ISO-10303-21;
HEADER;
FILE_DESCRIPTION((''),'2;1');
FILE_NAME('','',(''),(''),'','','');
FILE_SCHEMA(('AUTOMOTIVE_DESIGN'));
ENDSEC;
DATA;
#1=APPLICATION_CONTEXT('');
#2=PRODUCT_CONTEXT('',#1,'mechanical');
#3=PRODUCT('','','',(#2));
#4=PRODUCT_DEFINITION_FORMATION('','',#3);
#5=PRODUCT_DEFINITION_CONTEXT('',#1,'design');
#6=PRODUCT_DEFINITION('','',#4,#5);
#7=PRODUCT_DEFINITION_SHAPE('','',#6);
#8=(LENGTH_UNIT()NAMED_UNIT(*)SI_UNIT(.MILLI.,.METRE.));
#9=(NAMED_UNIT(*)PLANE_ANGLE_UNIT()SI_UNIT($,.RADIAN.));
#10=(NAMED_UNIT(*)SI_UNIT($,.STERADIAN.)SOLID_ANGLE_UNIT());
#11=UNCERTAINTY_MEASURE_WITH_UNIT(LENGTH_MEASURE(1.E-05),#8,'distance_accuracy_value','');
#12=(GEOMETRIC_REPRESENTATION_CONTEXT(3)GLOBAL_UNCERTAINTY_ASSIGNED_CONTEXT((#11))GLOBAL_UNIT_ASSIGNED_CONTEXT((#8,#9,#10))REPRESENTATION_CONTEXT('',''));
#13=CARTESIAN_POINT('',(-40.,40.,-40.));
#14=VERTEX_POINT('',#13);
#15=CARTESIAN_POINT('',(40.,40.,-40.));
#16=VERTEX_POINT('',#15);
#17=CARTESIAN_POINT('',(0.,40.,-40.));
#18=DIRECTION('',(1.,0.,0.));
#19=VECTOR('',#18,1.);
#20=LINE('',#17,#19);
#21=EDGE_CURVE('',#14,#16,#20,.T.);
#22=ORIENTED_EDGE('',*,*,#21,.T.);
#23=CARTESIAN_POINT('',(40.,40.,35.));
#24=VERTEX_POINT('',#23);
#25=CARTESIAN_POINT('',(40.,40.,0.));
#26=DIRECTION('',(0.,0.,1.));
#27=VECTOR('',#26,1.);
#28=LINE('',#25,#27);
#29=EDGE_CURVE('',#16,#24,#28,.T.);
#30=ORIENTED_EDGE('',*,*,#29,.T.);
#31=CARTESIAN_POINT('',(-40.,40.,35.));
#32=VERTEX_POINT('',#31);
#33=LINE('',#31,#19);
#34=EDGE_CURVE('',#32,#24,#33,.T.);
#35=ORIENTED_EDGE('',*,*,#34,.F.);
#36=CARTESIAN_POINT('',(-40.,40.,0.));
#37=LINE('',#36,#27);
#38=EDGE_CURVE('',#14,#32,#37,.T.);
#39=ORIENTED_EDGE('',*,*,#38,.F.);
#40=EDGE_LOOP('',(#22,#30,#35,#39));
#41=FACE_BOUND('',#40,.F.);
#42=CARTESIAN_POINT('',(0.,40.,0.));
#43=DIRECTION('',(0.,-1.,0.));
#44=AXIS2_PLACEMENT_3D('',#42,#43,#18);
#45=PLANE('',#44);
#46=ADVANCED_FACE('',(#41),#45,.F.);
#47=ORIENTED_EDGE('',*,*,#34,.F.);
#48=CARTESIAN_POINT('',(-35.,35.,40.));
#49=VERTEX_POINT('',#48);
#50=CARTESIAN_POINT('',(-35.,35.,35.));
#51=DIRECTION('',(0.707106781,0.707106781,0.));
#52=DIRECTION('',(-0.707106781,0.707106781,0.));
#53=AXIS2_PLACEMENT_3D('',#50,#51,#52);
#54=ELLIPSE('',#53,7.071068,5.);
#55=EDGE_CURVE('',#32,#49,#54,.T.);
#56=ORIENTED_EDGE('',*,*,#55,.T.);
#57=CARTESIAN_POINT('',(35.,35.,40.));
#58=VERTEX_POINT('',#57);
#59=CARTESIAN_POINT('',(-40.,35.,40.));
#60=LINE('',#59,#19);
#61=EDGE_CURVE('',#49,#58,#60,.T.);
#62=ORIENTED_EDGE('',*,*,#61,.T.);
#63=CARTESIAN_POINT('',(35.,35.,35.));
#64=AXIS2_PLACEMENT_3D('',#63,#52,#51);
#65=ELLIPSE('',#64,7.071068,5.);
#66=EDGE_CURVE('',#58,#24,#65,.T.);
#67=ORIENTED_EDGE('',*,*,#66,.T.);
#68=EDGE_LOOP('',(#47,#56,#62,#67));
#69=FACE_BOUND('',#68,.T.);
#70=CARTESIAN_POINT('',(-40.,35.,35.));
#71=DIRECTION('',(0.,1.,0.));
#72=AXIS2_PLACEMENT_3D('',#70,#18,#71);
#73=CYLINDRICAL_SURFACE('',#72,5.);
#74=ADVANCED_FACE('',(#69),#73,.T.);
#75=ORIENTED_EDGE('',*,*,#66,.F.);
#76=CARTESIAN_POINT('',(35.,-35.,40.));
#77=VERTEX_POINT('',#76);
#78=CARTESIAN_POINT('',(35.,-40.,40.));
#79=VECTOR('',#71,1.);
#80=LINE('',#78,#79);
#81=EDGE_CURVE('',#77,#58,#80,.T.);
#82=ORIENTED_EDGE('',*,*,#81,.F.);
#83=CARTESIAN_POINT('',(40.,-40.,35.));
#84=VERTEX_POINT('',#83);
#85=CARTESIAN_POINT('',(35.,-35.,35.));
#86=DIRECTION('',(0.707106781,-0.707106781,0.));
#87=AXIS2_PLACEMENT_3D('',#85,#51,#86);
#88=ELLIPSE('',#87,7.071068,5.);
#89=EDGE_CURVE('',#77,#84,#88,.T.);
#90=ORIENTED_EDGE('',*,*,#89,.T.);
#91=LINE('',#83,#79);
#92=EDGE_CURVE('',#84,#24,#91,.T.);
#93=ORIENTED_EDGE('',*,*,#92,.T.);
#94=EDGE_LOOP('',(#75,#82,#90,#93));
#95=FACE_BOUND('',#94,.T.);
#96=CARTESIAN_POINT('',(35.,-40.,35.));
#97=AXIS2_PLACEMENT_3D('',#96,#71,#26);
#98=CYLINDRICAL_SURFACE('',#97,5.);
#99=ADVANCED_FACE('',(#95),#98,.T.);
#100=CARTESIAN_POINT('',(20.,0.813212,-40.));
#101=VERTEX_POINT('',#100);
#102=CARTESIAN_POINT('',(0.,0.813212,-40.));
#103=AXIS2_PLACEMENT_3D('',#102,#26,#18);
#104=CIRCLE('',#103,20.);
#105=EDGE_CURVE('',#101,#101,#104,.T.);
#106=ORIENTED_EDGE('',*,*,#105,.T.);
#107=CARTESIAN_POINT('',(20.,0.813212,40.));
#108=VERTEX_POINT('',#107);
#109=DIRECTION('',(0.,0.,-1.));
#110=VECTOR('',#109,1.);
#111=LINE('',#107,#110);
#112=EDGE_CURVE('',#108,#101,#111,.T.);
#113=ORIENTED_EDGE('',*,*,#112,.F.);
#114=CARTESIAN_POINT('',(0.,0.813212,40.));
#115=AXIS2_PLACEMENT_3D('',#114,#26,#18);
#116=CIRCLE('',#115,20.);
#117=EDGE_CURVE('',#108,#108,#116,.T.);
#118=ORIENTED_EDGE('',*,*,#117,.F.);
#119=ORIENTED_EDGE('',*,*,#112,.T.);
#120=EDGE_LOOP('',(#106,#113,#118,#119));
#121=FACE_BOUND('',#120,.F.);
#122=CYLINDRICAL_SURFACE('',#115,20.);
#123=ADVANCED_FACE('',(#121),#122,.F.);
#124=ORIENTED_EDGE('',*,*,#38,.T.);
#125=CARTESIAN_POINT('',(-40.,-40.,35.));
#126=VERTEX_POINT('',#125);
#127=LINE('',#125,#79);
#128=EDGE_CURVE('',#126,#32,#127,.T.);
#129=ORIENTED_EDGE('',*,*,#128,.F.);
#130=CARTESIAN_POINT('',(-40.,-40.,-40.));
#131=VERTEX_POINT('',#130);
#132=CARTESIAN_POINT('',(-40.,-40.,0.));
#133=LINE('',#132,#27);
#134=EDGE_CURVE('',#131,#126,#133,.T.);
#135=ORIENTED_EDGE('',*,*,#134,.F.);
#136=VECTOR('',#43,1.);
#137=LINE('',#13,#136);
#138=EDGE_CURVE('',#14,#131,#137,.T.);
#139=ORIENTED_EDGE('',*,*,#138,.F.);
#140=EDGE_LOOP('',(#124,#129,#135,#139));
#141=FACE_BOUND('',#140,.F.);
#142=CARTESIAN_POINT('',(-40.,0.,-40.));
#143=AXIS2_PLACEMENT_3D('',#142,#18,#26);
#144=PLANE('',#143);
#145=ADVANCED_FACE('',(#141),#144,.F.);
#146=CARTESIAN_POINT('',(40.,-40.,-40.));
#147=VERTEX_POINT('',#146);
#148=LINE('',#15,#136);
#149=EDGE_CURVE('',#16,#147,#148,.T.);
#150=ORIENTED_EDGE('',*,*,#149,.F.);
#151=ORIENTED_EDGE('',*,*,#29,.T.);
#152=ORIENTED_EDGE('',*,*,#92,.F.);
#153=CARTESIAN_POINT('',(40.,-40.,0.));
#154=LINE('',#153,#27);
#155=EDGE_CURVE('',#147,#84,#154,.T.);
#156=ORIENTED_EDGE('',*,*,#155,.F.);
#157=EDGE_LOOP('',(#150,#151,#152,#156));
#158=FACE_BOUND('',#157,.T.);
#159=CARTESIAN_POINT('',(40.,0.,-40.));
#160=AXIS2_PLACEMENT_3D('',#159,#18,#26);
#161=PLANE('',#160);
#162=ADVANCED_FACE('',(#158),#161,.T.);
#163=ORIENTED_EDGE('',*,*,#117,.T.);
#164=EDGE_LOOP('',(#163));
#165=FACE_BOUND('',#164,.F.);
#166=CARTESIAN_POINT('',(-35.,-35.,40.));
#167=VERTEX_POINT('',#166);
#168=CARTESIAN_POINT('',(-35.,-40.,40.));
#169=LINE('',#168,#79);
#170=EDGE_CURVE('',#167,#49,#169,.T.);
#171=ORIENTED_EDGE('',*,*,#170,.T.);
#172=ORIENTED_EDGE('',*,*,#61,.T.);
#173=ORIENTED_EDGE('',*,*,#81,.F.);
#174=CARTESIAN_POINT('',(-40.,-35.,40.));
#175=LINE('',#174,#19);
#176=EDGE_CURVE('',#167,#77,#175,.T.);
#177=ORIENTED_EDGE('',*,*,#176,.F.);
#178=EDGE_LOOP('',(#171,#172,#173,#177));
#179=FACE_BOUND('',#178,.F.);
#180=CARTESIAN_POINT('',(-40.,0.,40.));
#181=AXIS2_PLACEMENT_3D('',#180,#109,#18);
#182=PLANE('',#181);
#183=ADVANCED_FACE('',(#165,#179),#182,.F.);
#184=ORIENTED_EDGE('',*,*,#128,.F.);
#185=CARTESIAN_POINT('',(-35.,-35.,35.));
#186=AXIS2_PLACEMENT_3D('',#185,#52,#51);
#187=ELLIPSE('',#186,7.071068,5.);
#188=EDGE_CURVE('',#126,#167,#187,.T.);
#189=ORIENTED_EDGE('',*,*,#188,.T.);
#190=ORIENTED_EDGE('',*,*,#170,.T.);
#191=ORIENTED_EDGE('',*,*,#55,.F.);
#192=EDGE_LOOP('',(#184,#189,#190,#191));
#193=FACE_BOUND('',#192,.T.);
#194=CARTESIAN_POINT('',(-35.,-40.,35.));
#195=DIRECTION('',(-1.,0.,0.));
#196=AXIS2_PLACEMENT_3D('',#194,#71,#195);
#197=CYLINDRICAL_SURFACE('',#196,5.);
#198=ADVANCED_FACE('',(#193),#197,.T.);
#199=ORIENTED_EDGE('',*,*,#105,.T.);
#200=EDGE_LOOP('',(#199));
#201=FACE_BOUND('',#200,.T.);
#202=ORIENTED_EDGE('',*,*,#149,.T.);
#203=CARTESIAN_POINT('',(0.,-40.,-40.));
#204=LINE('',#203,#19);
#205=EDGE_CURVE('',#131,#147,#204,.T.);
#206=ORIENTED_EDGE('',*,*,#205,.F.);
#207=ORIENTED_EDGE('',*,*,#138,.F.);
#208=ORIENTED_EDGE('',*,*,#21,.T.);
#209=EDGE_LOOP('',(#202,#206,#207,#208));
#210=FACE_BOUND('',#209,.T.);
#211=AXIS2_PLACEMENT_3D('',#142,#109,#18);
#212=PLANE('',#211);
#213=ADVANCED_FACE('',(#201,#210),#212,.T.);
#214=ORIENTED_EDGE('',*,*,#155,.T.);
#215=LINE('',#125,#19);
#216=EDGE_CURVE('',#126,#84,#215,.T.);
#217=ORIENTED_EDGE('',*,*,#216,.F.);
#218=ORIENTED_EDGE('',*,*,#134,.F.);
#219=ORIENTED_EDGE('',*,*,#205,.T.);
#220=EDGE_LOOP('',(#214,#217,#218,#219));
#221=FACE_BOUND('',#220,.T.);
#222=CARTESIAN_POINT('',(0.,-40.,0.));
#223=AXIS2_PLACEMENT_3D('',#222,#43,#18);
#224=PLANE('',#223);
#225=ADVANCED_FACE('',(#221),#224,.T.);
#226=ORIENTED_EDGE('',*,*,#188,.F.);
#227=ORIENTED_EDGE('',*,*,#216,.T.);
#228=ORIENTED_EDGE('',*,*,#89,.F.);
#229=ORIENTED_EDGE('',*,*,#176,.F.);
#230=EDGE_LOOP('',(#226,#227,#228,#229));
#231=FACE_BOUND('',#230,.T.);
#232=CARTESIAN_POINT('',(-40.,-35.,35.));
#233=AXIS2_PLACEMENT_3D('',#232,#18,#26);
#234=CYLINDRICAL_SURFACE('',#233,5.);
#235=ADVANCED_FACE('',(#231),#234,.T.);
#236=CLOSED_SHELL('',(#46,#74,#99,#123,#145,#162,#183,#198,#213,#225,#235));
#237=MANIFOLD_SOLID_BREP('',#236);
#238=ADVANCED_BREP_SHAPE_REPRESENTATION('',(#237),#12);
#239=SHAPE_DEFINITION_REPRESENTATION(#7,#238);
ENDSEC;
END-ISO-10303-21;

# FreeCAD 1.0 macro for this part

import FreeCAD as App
import Part
import Sketcher
from FreeCAD import Vector
Q = App.Units.Quantity


def edges_at(feature, points):
    """Names of the edges that pass closest to the given points."""
    edges = feature.Shape.Edges
    near = lambda p: min(range(len(edges)), key=lambda i: edges[i].distToShape(Part.Vertex(*p))[0])
    return sorted({f"Edge{near(p) + 1}" for p in points})

doc = App.newDocument("Part")
body = doc.addObject("PartDesign::Body", "Body")

# Sketch on XZ plane
sketch1 = body.newObject("Sketcher::SketchObject", "Sketch")
sketch1.AttachmentSupport = (doc.getObject("XZ_Plane"), [""])
sketch1.MapMode = "FlatFace"
sketch1.addGeometry([
    Part.LineSegment(Vector(-40, 40, 0), Vector(-40, -40, 0)),
    Part.LineSegment(Vector(-40, -40, 0), Vector(40, -40, 0)),
    Part.LineSegment(Vector(40, -40, 0), Vector(40, 40, 0)),
    Part.LineSegment(Vector(40, 40, 0), Vector(-40, 40, 0)),
], False)
sketch1.addConstraint([
    Sketcher.Constraint("Coincident", 0, 2, 1, 1),
    Sketcher.Constraint("Coincident", 1, 2, 2, 1),
    Sketcher.Constraint("Coincident", 2, 2, 3, 1),
    Sketcher.Constraint("Coincident", 3, 2, 0, 1),
    Sketcher.Constraint("Vertical", 0),
    Sketcher.Constraint("Horizontal", 1),
    Sketcher.Constraint("Vertical", 2),
    Sketcher.Constraint("Horizontal", 3),
    Sketcher.Constraint("Symmetric", 0, 2, 2, 2, -1, 1),
    Sketcher.Constraint("Equal", 3, 0),
    Sketcher.Constraint("DistanceX", 1, 1, 1, 2, Q("80 mm")),
])
pad1 = body.newObject("PartDesign::Pad", "Pad")
pad1.Profile = sketch1
pad1.Length = 80
pad1.Midplane = True

# Sketch on XY plane
sketch2 = body.newObject("Sketcher::SketchObject", "Sketch001")
sketch2.AttachmentSupport = (doc.getObject("XY_Plane"), [""])
sketch2.MapMode = "FlatFace"
sketch2.AttachmentOffset = App.Placement(Vector(0, 0, 40), App.Rotation())
sketch2.addGeometry(Part.Circle(Vector(0, 0.813212, 0), Vector(0, 0, 1), 20), False)
sketch2.addConstraint([
    Sketcher.Constraint("PointOnObject", 0, 3, -2),
    Sketcher.Constraint("Diameter", 0, Q("40 mm")),
    Sketcher.Constraint("DistanceY", -1, 1, 0, 3, Q("0.813212 mm")),
])
pocket1 = body.newObject("PartDesign::Pocket", "Pocket")
pocket1.Profile = sketch2
pocket1.Type = "ThroughAll"
doc.recompute()

fillet = body.newObject("PartDesign::Fillet", "Fillet")
fillet.Base = (pocket1, edges_at(pocket1, [
    (-40, 0, 40),
    (0, -40, 40),
    (40, 0, 40),
    (0, 40, 40),
]))
fillet.Radius = 5

doc.recompute()
